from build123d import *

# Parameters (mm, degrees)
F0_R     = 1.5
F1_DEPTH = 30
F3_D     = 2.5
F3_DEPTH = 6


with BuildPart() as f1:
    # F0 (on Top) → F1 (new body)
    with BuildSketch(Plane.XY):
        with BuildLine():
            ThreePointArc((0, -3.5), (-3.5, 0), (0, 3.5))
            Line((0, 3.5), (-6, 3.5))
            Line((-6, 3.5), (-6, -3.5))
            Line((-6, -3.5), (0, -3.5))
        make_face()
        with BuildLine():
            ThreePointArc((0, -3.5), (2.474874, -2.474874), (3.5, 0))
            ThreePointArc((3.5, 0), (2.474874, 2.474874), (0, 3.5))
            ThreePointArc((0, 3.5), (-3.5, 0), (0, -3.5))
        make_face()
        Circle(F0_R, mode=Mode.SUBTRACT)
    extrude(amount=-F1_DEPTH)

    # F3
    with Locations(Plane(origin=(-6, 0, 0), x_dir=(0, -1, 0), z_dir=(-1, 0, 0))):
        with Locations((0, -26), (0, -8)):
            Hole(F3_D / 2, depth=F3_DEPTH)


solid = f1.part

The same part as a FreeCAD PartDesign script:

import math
import FreeCAD as App
import Part
import Sketcher

V = App.Vector

doc = App.newDocument("Part")
params = doc.addObject("Spreadsheet::Sheet", "Params")
for row, (alias, value) in enumerate([
    ("sketch1_diameter", "3 mm"),
    ("sketch1_radius", "3.499999 mm"),
    ("sketch1_width", "6 mm"),
    ("pad1_length", "30 mm"),
    ("sketch2_diameter", "2.5 mm"),
    ("hole_diameter", "2.5 mm"),
    ("hole_depth", "6 mm"),
], start=1):
    params.set(f"A{row}", alias)
    params.set(f"B{row}", "=" + value)
    params.setAlias(f"B{row}", alias)

body = doc.addObject("PartDesign::Body", "Body")

sketch1 = doc.addObject("Sketcher::SketchObject", "Sketch")
body.addObject(sketch1)
sketch1.AttachmentSupport = (doc.XY_Plane, [""])
sketch1.MapMode = "FlatFace"
sketch1.addGeometry(Part.LineSegment(V(0, 3.5, 0), V(-6, 3.5, 0)), False)
sketch1.addGeometry(Part.LineSegment(V(-6, 3.5, 0), V(-6, -3.5, 0)), False)
sketch1.addGeometry(Part.LineSegment(V(-6, -3.5, 0), V(0, -3.5, 0)), False)
sketch1.addGeometry(Part.ArcOfCircle(Part.Circle(V(0, 0, 0), V(0, 0, 1), 3.5), math.radians(-90), math.radians(0)), False)
sketch1.addGeometry(Part.ArcOfCircle(Part.Circle(V(0, 0, 0), V(0, 0, 1), 3.5), math.radians(0), math.radians(90)), False)
sketch1.addGeometry(Part.Circle(V(0, 0, 0), V(0, 0, 1), 1.5), False)
sketch1.addConstraint(Sketcher.Constraint("Coincident", 0, 2, 1, 1))
sketch1.addConstraint(Sketcher.Constraint("Coincident", 1, 2, 2, 1))
sketch1.addConstraint(Sketcher.Constraint("Tangent", 2, 2, 3, 1))
sketch1.addConstraint(Sketcher.Constraint("Tangent", 3, 2, 4, 1))
sketch1.addConstraint(Sketcher.Constraint("Tangent", 4, 2, 0, 1))
sketch1.addConstraint(Sketcher.Constraint("Horizontal", 0))
sketch1.addConstraint(Sketcher.Constraint("Vertical", 1))
sketch1.addConstraint(Sketcher.Constraint("Horizontal", 2))
sketch1.addConstraint(Sketcher.Constraint("Coincident", 3, 3, -1, 1))
sketch1.addConstraint(Sketcher.Constraint("Coincident", 5, 3, -1, 1))
sketch1.addConstraint(Sketcher.Constraint("Equal", 3, 4))
sketch1.addConstraint(Sketcher.Constraint("PointOnObject", 3, 2, -1))
sketch1.addConstraint(Sketcher.Constraint("Diameter", 5, 3.0))
sketch1.addConstraint(Sketcher.Constraint("Radius", 3, 3.499999))
sketch1.addConstraint(Sketcher.Constraint("DistanceX", 0, 2, 0, 1, 6.0))
sketch1.setExpression("Constraints[12]", "Params.sketch1_diameter")
sketch1.setExpression("Constraints[13]", "Params.sketch1_radius")
sketch1.setExpression("Constraints[14]", "Params.sketch1_width")
pad1 = doc.addObject("PartDesign::Pad", "Pad")
body.addObject(pad1)
pad1.Profile = sketch1
pad1.setExpression("Length", "Params.pad1_length")
pad1.Reversed = True

sketch2 = doc.addObject("Sketcher::SketchObject", "Sketch001")
body.addObject(sketch2)
sketch2.AttachmentSupport = (doc.YZ_Plane, [""])
sketch2.MapMode = "FlatFace"
sketch2.AttachmentOffset = App.Placement(V(0, 0, -6), App.Rotation())
sketch2.addGeometry(Part.Circle(V(0, -26, 0), V(0, 0, 1), 1.2), False)
sketch2.addGeometry(Part.Circle(V(0, -8, 0), V(0, 0, 1), 1.2), False)
sketch2.addConstraint(Sketcher.Constraint("Equal", 0, 1))
sketch2.addConstraint(Sketcher.Constraint("PointOnObject", 0, 3, -2))
sketch2.addConstraint(Sketcher.Constraint("PointOnObject", 1, 3, -2))
sketch2.addConstraint(Sketcher.Constraint("Diameter", 0, 2.5))
sketch2.addConstraint(Sketcher.Constraint("DistanceY", 0, 3, -1, 1, 26.0))
sketch2.addConstraint(Sketcher.Constraint("DistanceY", 1, 3, -1, 1, 8.0))
sketch2.setExpression("Constraints[3]", "Params.sketch2_diameter")
doc.recompute()
hole = doc.addObject("PartDesign::Hole", "Hole")
body.addObject(hole)
hole.Profile = sketch2
hole.ThreadType = "None"
hole.setExpression("Diameter", "Params.hole_diameter")
hole.DepthType = "Dimension"
hole.setExpression("Depth", "Params.hole_depth")
hole.DrillPoint = "Flat"
hole.Reversed = True

doc.recompute()
